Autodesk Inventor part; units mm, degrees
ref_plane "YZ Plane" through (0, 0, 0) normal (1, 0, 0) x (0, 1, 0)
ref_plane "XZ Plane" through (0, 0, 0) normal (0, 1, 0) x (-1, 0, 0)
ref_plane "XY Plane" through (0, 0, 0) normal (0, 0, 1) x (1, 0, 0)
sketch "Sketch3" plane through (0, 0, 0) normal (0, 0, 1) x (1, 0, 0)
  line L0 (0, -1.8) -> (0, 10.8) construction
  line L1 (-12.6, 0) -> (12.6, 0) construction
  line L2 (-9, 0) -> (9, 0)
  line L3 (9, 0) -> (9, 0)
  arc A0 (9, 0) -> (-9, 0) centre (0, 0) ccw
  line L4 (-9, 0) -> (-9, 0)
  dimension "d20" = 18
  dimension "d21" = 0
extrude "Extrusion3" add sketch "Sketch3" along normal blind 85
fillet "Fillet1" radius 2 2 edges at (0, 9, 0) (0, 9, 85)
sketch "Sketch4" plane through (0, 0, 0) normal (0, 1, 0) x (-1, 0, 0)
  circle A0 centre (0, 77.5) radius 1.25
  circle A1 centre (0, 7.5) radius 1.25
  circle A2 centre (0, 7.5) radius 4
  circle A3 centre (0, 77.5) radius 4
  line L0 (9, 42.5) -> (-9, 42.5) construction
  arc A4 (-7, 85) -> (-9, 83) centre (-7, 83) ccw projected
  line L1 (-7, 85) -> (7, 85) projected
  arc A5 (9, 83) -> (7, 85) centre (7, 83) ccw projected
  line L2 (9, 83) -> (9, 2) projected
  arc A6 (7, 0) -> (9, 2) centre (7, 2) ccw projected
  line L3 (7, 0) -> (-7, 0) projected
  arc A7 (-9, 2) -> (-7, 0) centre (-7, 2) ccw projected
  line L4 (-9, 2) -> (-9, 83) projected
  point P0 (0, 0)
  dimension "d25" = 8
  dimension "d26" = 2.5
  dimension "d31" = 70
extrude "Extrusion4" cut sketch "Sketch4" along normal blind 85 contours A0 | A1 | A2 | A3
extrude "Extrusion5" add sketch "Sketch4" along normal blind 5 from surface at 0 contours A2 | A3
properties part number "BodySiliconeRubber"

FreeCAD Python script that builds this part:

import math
import FreeCAD as App
import Part
import Sketcher
from FreeCAD import Vector
Q = App.Units.Quantity


def edges_at(feature, points):
    """Names of the edges that pass closest to the given points."""
    edges = feature.Shape.Edges
    near = lambda p: min(range(len(edges)), key=lambda i: edges[i].distToShape(Part.Vertex(*p))[0])
    return sorted({f"Edge{near(p) + 1}" for p in points})

doc = App.newDocument("Part")
body = doc.addObject("PartDesign::Body", "Body")

sketch1 = body.newObject("Sketcher::SketchObject", "Sketch")
sketch1.AttachmentSupport = (doc.getObject("XY_Plane"), [""])
sketch1.MapMode = "FlatFace"
sketch1.addGeometry(Part.ArcOfCircle(Part.Circle(Vector(0, 0, 0), Vector(0, 0, 1), 9), math.radians(0), math.radians(180)), False)
sketch1.addGeometry(Part.LineSegment(Vector(-9, 0, 0), Vector(9, 0, 0)), False)
sketch1.addConstraint(Sketcher.Constraint("Coincident", 0, 1, 1, 2))
sketch1.addConstraint(Sketcher.Constraint("Coincident", 1, 1, 0, 2))
sketch1.addConstraint(Sketcher.Constraint("Horizontal", 1))
sketch1.addConstraint(Sketcher.Constraint("Coincident", 0, 3, -1, 1))
sketch1.addConstraint(Sketcher.Constraint("PointOnObject", 0, 1, -1))
sketch1.addConstraint(Sketcher.Constraint("Radius", 0, Q("9 mm")))
pad1 = body.newObject("PartDesign::Pad", "Pad")
pad1.Profile = sketch1
pad1.Length = 85
doc.recompute()

fillet = body.newObject("PartDesign::Fillet", "Fillet")
fillet.Base = (pad1, edges_at(pad1, [(0, 9, 0), (0, 9, 85)]))
fillet.Radius = 2

sketch2 = body.newObject("Sketcher::SketchObject", "Sketch001")
sketch2.AttachmentSupport = (doc.getObject("XZ_Plane"), [""])
sketch2.MapMode = "FlatFace"
sketch2.addGeometry(Part.Circle(Vector(0, 77.5, 0), Vector(0, 0, 1), 4), False)
sketch2.addGeometry(Part.Circle(Vector(0, 7.5, 0), Vector(0, 0, 1), 4), False)
sketch2.addConstraint(Sketcher.Constraint("Equal", 0, 1))
sketch2.addConstraint(Sketcher.Constraint("PointOnObject", 0, 3, -2))
sketch2.addConstraint(Sketcher.Constraint("PointOnObject", 1, 3, -2))
sketch2.addConstraint(Sketcher.Constraint("Diameter", 0, Q("8 mm")))
sketch2.addConstraint(Sketcher.Constraint("DistanceY", 1, 3, 0, 3, Q("70 mm")))
sketch2.addConstraint(Sketcher.Constraint("DistanceY", -1, 1, 0, 3, Q("77.5 mm")))
pocket1 = body.newObject("PartDesign::Pocket", "Pocket")
pocket1.Profile = sketch2
pocket1.Length = 85

sketch3 = body.newObject("Sketcher::SketchObject", "Sketch002")
sketch3.AttachmentSupport = (doc.getObject("XZ_Plane"), [""])
sketch3.MapMode = "FlatFace"
sketch3.addGeometry(Part.Circle(Vector(0, 7.5, 0), Vector(0, 0, 1), 4), False)
sketch3.addGeometry(Part.Circle(Vector(0, 7.5, 0), Vector(0, 0, 1), 1.25), False)
sketch3.addGeometry(Part.Circle(Vector(0, 77.5, 0), Vector(0, 0, 1), 4), False)
sketch3.addGeometry(Part.Circle(Vector(0, 77.5, 0), Vector(0, 0, 1), 1.25), False)
sketch3.addConstraint(Sketcher.Constraint("Coincident", 1, 3, 0, 3))
sketch3.addConstraint(Sketcher.Constraint("Coincident", 3, 3, 2, 3))
sketch3.addConstraint(Sketcher.Constraint("Equal", 0, 2))
sketch3.addConstraint(Sketcher.Constraint("Equal", 1, 3))
sketch3.addConstraint(Sketcher.Constraint("PointOnObject", 0, 3, -2))
sketch3.addConstraint(Sketcher.Constraint("PointOnObject", 2, 3, -2))
sketch3.addConstraint(Sketcher.Constraint("Diameter", 0, Q("8 mm")))
sketch3.addConstraint(Sketcher.Constraint("Diameter", 1, Q("2.5 mm")))
sketch3.addConstraint(Sketcher.Constraint("DistanceY", 0, 3, 2, 3, Q("70 mm")))
sketch3.addConstraint(Sketcher.Constraint("DistanceY", -1, 1, 0, 3, Q("7.5 mm")))
pad2 = body.newObject("PartDesign::Pad", "Pad001")
pad2.Profile = sketch3
pad2.Length = 5
pad2.Reversed = True

doc.recompute()
